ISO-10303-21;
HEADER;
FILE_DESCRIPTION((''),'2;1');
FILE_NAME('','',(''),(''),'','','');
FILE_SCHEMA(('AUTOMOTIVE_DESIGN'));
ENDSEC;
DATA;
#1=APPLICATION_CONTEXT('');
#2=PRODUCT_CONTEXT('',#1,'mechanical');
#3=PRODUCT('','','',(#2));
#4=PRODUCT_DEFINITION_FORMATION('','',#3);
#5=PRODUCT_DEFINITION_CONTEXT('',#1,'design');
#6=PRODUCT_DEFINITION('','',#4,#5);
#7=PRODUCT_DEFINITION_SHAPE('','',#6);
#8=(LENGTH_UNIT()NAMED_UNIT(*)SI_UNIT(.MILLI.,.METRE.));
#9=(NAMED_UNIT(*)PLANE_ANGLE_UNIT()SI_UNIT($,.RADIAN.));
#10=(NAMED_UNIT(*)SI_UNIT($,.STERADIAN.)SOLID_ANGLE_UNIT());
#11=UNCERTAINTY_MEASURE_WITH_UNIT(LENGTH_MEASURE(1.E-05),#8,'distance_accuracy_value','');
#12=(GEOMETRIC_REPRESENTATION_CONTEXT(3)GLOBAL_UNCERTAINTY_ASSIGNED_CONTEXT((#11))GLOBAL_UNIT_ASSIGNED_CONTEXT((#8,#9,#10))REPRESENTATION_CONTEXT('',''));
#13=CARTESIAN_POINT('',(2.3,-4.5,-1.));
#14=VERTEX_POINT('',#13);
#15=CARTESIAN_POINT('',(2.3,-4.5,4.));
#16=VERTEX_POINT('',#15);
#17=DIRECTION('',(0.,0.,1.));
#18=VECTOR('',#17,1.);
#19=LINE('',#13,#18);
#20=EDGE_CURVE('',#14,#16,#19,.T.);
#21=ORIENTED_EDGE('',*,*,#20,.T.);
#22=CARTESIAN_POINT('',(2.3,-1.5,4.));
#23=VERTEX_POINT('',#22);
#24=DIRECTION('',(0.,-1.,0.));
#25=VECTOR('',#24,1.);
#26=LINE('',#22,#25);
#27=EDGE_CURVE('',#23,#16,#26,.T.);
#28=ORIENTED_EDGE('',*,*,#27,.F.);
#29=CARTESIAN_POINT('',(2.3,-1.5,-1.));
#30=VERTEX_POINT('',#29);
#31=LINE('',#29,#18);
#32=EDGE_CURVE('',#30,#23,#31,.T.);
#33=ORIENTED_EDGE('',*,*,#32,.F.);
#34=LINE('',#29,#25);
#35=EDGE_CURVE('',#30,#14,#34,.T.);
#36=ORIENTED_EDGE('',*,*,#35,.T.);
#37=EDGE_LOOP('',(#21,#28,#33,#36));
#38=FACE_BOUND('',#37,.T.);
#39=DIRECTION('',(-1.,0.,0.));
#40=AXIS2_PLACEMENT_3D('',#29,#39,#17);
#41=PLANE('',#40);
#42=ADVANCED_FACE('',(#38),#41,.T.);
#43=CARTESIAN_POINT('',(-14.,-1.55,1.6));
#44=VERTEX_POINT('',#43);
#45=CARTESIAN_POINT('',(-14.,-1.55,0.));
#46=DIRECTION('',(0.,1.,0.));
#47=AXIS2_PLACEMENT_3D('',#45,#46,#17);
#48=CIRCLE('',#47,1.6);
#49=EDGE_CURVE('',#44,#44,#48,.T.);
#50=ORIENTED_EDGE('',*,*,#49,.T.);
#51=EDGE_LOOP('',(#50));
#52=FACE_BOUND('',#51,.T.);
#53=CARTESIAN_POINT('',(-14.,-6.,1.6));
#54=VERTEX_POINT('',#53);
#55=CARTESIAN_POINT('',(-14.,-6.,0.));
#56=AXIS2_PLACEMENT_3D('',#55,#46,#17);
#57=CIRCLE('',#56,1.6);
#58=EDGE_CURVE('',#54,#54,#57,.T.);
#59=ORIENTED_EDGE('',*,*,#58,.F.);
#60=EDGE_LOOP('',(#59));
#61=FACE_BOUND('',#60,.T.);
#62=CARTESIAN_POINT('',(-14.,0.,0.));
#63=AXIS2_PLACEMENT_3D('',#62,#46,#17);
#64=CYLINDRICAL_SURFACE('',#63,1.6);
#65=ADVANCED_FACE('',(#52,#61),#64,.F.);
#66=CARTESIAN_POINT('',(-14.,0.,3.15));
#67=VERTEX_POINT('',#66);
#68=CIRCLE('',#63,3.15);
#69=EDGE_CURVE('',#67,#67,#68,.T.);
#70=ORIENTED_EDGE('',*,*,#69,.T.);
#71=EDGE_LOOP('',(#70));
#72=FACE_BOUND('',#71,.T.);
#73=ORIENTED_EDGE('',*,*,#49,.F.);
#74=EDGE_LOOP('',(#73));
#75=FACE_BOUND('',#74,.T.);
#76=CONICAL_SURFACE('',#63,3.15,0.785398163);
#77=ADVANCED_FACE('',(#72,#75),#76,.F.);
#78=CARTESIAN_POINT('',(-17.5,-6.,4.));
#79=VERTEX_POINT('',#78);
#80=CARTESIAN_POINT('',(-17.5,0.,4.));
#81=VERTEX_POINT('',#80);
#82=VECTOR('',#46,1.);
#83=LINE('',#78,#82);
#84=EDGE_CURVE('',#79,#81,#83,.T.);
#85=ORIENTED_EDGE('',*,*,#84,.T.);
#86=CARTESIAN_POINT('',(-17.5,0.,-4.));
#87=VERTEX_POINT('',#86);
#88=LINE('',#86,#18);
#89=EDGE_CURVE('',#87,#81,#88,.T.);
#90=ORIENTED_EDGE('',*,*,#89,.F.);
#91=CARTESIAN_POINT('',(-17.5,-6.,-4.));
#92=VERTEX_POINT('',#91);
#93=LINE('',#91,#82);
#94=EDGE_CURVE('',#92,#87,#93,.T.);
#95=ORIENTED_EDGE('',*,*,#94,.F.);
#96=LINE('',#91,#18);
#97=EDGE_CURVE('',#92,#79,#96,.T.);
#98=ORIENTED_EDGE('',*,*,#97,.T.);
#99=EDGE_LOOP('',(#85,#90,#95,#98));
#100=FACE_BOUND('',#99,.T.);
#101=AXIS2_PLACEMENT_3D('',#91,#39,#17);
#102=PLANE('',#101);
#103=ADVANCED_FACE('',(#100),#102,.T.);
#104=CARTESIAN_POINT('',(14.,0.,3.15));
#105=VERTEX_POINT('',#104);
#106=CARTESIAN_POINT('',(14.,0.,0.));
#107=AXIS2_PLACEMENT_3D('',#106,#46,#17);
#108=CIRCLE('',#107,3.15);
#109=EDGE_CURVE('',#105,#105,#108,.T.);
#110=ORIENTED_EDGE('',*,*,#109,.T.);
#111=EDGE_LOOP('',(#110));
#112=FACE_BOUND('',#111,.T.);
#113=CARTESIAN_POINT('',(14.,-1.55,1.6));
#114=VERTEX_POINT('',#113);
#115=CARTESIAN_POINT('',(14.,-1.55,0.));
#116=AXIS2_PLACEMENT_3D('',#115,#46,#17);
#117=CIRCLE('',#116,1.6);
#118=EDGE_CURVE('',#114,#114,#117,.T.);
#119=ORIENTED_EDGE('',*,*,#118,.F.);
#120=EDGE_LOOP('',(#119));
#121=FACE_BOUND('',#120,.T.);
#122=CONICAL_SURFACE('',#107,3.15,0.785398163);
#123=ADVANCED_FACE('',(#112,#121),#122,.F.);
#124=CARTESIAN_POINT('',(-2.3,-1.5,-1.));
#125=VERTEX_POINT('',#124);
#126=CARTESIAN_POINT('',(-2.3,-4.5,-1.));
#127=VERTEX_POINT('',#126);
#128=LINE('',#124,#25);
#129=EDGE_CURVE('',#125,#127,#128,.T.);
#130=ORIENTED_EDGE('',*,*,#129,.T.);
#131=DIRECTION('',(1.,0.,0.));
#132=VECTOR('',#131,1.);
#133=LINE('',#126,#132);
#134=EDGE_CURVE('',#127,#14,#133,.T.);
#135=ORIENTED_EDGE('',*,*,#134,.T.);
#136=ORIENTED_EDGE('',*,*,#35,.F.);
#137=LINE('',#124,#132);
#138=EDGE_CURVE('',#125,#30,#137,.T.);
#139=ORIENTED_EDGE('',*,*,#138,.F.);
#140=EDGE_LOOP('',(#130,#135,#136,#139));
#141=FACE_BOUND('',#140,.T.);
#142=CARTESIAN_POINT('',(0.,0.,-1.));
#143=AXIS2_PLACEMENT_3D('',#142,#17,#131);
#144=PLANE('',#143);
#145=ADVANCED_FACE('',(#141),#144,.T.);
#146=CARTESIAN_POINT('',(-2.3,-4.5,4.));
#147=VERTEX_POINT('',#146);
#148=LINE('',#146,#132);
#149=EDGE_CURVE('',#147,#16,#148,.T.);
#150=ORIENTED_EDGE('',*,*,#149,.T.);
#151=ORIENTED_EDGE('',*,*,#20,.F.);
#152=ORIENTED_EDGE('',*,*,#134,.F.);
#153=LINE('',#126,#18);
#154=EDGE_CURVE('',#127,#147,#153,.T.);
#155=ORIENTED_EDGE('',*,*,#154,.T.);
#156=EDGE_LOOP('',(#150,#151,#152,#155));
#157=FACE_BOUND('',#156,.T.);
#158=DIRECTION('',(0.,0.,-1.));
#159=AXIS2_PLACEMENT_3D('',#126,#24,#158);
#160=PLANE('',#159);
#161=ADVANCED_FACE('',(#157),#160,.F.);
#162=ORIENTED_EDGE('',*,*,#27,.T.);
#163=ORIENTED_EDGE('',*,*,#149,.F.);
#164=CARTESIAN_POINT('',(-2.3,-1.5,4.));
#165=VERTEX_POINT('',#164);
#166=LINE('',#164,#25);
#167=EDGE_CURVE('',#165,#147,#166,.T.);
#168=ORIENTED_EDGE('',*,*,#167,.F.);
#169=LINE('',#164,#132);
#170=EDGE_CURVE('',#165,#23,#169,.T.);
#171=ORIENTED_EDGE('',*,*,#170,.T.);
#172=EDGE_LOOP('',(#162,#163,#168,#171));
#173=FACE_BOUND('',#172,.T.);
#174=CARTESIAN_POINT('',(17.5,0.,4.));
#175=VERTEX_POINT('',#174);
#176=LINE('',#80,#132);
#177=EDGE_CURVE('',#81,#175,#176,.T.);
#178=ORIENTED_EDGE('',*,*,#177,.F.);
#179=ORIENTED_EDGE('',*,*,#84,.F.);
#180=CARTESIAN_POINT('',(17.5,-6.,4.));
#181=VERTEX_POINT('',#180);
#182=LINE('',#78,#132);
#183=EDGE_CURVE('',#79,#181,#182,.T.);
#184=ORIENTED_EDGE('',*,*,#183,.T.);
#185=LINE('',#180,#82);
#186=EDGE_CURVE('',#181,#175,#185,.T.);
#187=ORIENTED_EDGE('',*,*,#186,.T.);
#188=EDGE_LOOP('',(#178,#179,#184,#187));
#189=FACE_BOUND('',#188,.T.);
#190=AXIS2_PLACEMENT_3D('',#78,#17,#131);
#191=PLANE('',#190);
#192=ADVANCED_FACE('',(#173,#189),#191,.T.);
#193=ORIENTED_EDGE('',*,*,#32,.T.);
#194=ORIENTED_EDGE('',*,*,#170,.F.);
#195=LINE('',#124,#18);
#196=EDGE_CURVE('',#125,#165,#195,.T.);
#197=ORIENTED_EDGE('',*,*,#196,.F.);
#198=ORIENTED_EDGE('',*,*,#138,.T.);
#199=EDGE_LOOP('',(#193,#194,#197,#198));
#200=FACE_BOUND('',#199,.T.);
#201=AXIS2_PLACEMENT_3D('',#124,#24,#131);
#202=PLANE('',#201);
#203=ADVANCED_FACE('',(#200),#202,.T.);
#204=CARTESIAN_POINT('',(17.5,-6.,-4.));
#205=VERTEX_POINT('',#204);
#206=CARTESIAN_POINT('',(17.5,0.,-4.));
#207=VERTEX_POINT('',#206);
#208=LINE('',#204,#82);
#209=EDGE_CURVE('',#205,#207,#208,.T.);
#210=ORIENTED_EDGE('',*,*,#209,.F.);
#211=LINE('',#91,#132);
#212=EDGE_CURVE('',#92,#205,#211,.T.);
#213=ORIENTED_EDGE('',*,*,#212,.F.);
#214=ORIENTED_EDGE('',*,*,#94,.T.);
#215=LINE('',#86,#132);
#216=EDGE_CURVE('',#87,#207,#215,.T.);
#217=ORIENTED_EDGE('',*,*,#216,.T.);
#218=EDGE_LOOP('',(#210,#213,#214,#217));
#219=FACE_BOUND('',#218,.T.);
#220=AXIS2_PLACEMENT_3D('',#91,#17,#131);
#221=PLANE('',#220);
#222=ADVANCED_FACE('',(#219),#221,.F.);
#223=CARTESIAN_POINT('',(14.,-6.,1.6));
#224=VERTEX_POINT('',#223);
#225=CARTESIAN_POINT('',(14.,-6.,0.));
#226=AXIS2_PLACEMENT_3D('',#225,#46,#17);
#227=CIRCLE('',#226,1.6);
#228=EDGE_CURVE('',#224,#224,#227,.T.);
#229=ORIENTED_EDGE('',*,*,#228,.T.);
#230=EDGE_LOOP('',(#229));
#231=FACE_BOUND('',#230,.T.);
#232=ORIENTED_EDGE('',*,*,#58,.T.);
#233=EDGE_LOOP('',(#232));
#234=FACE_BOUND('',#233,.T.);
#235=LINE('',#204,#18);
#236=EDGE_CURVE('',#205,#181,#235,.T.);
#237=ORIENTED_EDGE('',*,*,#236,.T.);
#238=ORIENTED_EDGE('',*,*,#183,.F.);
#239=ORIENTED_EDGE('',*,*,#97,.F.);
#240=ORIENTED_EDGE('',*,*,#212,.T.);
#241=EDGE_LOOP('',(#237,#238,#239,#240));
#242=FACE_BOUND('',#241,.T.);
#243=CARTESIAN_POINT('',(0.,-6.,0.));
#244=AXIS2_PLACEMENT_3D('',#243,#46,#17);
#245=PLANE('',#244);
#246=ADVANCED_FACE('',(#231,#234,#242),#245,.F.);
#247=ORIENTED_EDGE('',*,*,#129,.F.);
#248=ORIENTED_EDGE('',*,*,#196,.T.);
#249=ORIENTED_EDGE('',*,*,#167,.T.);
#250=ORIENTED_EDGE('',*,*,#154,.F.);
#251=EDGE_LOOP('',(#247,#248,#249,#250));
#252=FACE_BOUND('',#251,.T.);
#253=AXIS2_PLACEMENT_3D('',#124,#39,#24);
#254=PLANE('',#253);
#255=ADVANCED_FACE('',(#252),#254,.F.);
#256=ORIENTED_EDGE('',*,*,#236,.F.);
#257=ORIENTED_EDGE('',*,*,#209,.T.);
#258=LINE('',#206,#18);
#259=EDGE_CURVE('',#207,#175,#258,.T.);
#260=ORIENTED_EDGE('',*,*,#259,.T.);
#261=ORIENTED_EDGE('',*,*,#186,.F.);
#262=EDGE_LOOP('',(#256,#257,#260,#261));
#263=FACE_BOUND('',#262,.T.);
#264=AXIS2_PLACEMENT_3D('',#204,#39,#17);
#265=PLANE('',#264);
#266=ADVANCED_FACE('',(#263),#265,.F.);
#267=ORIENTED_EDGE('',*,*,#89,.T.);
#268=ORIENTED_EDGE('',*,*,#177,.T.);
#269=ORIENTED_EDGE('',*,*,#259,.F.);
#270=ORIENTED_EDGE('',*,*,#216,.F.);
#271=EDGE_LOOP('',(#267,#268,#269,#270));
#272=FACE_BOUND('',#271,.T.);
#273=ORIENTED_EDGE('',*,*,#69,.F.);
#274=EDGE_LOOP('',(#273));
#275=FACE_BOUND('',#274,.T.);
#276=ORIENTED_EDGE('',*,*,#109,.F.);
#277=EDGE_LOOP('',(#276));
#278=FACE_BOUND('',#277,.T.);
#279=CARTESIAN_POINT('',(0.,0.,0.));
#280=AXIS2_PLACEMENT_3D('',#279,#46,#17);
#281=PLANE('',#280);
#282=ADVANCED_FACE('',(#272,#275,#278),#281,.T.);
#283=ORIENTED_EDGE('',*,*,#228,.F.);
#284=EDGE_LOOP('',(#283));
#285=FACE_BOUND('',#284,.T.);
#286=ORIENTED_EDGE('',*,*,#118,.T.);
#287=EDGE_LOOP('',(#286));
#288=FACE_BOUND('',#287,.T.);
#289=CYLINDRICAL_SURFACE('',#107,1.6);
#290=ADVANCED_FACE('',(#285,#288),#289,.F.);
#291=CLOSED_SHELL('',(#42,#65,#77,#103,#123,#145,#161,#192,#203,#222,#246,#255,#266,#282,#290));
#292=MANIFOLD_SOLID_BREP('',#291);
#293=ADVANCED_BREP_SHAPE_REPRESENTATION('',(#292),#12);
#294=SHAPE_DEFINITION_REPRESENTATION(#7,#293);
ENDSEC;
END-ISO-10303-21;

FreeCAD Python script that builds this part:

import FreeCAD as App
import Part
import Sketcher

V = App.Vector

doc = App.newDocument("Part")
body = doc.addObject("PartDesign::Body", "Body")

# Sketch on XZ plane
sketch1 = body.newObject("Sketcher::SketchObject", "Sketch")
sketch1.AttachmentSupport = (doc.getObject("XZ_Plane"), [""])
sketch1.MapMode = "FlatFace"
sketch1.addGeometry(Part.LineSegment(V(-18, -4, 0), V(-18, 4, 0)), False)
sketch1.addGeometry(Part.LineSegment(V(-18, 4, 0), V(18, 4, 0)), False)
sketch1.addGeometry(Part.LineSegment(V(18, 4, 0), V(18, -4, 0)), False)
sketch1.addGeometry(Part.LineSegment(V(18, -4, 0), V(-18, -4, 0)), False)
sketch1.addConstraint(Sketcher.Constraint("Coincident", 0, 2, 1, 1))
sketch1.addConstraint(Sketcher.Constraint("Coincident", 1, 2, 2, 1))
sketch1.addConstraint(Sketcher.Constraint("Coincident", 2, 2, 3, 1))
sketch1.addConstraint(Sketcher.Constraint("Coincident", 3, 2, 0, 1))
sketch1.addConstraint(Sketcher.Constraint("Vertical", 0))
sketch1.addConstraint(Sketcher.Constraint("Horizontal", 1))
sketch1.addConstraint(Sketcher.Constraint("Vertical", 2))
sketch1.addConstraint(Sketcher.Constraint("Horizontal", 3))
sketch1.addConstraint(Sketcher.Constraint("Symmetric", 0, 2, 2, 2, -1, 1))
sketch1.addConstraint(Sketcher.Constraint("DistanceX", 1, 1, 1, 2, 35.0))
sketch1.addConstraint(Sketcher.Constraint("DistanceY", 0, 1, 0, 2, 8.0))
pad1 = body.newObject("PartDesign::Pad", "Pad")
pad1.Profile = sketch1
pad1.Length = 6

# Sketch on XY plane
sketch2 = body.newObject("Sketcher::SketchObject", "Sketch001")
sketch2.AttachmentSupport = (doc.getObject("XY_Plane"), [""])
sketch2.MapMode = "FlatFace"
sketch2.AttachmentOffset = App.Placement(V(0, 0, 4), App.Rotation())
sketch2.addGeometry(Part.LineSegment(V(-2.3, -1.5, 0), V(-2.3, -4.5, 0)), False)
sketch2.addGeometry(Part.LineSegment(V(-2.3, -4.5, 0), V(2.3, -4.5, 0)), False)
sketch2.addGeometry(Part.LineSegment(V(2.3, -4.5, 0), V(2.3, -1.5, 0)), False)
sketch2.addGeometry(Part.LineSegment(V(2.3, -1.5, 0), V(-2.3, -1.5, 0)), False)
sketch2.addConstraint(Sketcher.Constraint("Coincident", 0, 2, 1, 1))
sketch2.addConstraint(Sketcher.Constraint("Coincident", 1, 2, 2, 1))
sketch2.addConstraint(Sketcher.Constraint("Coincident", 2, 2, 3, 1))
sketch2.addConstraint(Sketcher.Constraint("Coincident", 3, 2, 0, 1))
sketch2.addConstraint(Sketcher.Constraint("Vertical", 0))
sketch2.addConstraint(Sketcher.Constraint("Horizontal", 1))
sketch2.addConstraint(Sketcher.Constraint("Vertical", 2))
sketch2.addConstraint(Sketcher.Constraint("Horizontal", 3))
sketch2.addConstraint(Sketcher.Constraint("DistanceY", 0, 2, 0, 1, 3.0))
sketch2.addConstraint(Sketcher.Constraint("DistanceX", 1, 1, 1, 2, 4.6))
sketch2.addConstraint(Sketcher.Constraint("DistanceX", 0, 2, -1, 1, 2.3))
sketch2.addConstraint(Sketcher.Constraint("DistanceY", 0, 2, -1, 1, 4.5))
pocket1 = body.newObject("PartDesign::Pocket", "Pocket")
pocket1.Profile = sketch2
pocket1.Length = 5

# Sketch on XZ plane
sketch3 = body.newObject("Sketcher::SketchObject", "Sketch002")
sketch3.AttachmentSupport = (doc.getObject("XZ_Plane"), [""])
sketch3.MapMode = "FlatFace"
sketch3.addGeometry(Part.Circle(V(-14, 0, 0), V(0, 0, 1), 1.6), False)
sketch3.addGeometry(Part.Circle(V(14, 0, 0), V(0, 0, 1), 1.6), False)
sketch3.addConstraint(Sketcher.Constraint("Equal", 0, 1))
sketch3.addConstraint(Sketcher.Constraint("Symmetric", 0, 3, 1, 3, -1, 1))
sketch3.addConstraint(Sketcher.Constraint("PointOnObject", 0, 3, -1))
sketch3.addConstraint(Sketcher.Constraint("Diameter", 0, 3.2))
sketch3.addConstraint(Sketcher.Constraint("DistanceX", 0, 3, -1, 1, 14.0))
doc.recompute()
hole = body.newObject("PartDesign::Hole", "Hole")
hole.Profile = sketch3
hole.ThreadType = "None"
hole.Diameter = 3.2
hole.DepthType = "ThroughAll"
hole.HoleCutType = "Countersink"
hole.HoleCutDiameter = 6.3
hole.HoleCutCountersinkAngle = 90
hole.Reversed = True

doc.recompute()
